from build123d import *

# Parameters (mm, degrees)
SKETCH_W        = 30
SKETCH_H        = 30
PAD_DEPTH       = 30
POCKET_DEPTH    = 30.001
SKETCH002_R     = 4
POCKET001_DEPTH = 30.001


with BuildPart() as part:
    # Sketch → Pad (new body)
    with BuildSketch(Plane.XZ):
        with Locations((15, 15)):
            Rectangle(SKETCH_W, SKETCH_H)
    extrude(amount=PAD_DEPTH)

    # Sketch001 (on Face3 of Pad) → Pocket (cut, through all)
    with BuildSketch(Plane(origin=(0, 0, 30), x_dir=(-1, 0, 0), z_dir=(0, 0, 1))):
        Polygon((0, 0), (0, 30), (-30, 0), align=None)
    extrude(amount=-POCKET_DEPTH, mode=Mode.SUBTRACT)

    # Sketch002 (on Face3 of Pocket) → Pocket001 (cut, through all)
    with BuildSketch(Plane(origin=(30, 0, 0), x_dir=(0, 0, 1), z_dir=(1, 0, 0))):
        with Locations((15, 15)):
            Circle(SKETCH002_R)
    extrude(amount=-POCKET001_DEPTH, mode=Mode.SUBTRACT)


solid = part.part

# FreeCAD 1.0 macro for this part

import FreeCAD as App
import Part
import Sketcher
Q = App.Units.Quantity


def add_polygon(sketch, points):
    """Adds a closed chain of lines whose ends are joined by coincident constraints."""
    first, n = sketch.GeometryCount, len(points)
    for a, b in zip(points, points[1:] + points[:1]):
        sketch.addGeometry(Part.LineSegment(App.Vector(*a, 0), App.Vector(*b, 0)), False)
    for i in range(n):
        sketch.addConstraint(Sketcher.Constraint("Coincident", first + i, 2, first + (i + 1) % n, 1))

doc = App.newDocument("Part")
body = doc.addObject("PartDesign::Body", "Body")

# Sketch on XZ plane
sketch1 = body.newObject("Sketcher::SketchObject", "Sketch")
sketch1.AttachmentSupport = (doc.getObject("XZ_Plane"), [""])
sketch1.MapMode = "FlatFace"
add_polygon(sketch1, [(0, 30), (0, 0), (30, 0), (30, 30)])  # lines 0-3
sketch1.addConstraint(Sketcher.Constraint("Vertical", 0))
sketch1.addConstraint(Sketcher.Constraint("Horizontal", 1))
sketch1.addConstraint(Sketcher.Constraint("Vertical", 2))
sketch1.addConstraint(Sketcher.Constraint("Horizontal", 3))
sketch1.addConstraint(Sketcher.Constraint("Coincident", 0, 2, -1, 1))
sketch1.addConstraint(Sketcher.Constraint("Equal", 3, 0))
sketch1.addConstraint(Sketcher.Constraint("DistanceX", 1, 1, 1, 2, Q("30 mm")))
pad1 = body.newObject("PartDesign::Pad", "Pad")
pad1.Profile = sketch1
pad1.Length = 30

# Sketch on XY plane
sketch2 = body.newObject("Sketcher::SketchObject", "Sketch001")
sketch2.AttachmentSupport = (doc.getObject("XY_Plane"), [""])
sketch2.MapMode = "FlatFace"
sketch2.AttachmentOffset = App.Placement(App.Vector(0, 0, 30), App.Rotation())
add_polygon(sketch2, [(0, 0), (0, -30), (30, 0)])  # lines 0-2
sketch2.addConstraint(Sketcher.Constraint("Vertical", 0))
sketch2.addConstraint(Sketcher.Constraint("Horizontal", 2))
sketch2.addConstraint(Sketcher.Constraint("Coincident", 2, 2, -1, 1))
sketch2.addConstraint(Sketcher.Constraint("Equal", 2, 0))
sketch2.addConstraint(Sketcher.Constraint("DistanceX", 2, 2, 2, 1, Q("30 mm")))
pocket1 = body.newObject("PartDesign::Pocket", "Pocket")
pocket1.Profile = sketch2
pocket1.Type = "ThroughAll"

# Sketch on YZ plane
sketch3 = body.newObject("Sketcher::SketchObject", "Sketch002")
sketch3.AttachmentSupport = (doc.getObject("YZ_Plane"), [""])
sketch3.MapMode = "FlatFace"
sketch3.AttachmentOffset = App.Placement(App.Vector(0, 0, 30), App.Rotation())
sketch3.addGeometry(Part.Circle(App.Vector(-15, 15, 0), App.Vector(0, 0, 1), 4), False)
sketch3.addConstraint(Sketcher.Constraint("Diameter", 0, Q("8 mm")))
sketch3.addConstraint(Sketcher.Constraint("DistanceX", 0, 3, -1, 1, Q("15 mm")))
sketch3.addConstraint(Sketcher.Constraint("DistanceY", -1, 1, 0, 3, Q("15 mm")))
pocket2 = body.newObject("PartDesign::Pocket", "Pocket001")
pocket2.Profile = sketch3
pocket2.Type = "ThroughAll"

doc.recompute()
